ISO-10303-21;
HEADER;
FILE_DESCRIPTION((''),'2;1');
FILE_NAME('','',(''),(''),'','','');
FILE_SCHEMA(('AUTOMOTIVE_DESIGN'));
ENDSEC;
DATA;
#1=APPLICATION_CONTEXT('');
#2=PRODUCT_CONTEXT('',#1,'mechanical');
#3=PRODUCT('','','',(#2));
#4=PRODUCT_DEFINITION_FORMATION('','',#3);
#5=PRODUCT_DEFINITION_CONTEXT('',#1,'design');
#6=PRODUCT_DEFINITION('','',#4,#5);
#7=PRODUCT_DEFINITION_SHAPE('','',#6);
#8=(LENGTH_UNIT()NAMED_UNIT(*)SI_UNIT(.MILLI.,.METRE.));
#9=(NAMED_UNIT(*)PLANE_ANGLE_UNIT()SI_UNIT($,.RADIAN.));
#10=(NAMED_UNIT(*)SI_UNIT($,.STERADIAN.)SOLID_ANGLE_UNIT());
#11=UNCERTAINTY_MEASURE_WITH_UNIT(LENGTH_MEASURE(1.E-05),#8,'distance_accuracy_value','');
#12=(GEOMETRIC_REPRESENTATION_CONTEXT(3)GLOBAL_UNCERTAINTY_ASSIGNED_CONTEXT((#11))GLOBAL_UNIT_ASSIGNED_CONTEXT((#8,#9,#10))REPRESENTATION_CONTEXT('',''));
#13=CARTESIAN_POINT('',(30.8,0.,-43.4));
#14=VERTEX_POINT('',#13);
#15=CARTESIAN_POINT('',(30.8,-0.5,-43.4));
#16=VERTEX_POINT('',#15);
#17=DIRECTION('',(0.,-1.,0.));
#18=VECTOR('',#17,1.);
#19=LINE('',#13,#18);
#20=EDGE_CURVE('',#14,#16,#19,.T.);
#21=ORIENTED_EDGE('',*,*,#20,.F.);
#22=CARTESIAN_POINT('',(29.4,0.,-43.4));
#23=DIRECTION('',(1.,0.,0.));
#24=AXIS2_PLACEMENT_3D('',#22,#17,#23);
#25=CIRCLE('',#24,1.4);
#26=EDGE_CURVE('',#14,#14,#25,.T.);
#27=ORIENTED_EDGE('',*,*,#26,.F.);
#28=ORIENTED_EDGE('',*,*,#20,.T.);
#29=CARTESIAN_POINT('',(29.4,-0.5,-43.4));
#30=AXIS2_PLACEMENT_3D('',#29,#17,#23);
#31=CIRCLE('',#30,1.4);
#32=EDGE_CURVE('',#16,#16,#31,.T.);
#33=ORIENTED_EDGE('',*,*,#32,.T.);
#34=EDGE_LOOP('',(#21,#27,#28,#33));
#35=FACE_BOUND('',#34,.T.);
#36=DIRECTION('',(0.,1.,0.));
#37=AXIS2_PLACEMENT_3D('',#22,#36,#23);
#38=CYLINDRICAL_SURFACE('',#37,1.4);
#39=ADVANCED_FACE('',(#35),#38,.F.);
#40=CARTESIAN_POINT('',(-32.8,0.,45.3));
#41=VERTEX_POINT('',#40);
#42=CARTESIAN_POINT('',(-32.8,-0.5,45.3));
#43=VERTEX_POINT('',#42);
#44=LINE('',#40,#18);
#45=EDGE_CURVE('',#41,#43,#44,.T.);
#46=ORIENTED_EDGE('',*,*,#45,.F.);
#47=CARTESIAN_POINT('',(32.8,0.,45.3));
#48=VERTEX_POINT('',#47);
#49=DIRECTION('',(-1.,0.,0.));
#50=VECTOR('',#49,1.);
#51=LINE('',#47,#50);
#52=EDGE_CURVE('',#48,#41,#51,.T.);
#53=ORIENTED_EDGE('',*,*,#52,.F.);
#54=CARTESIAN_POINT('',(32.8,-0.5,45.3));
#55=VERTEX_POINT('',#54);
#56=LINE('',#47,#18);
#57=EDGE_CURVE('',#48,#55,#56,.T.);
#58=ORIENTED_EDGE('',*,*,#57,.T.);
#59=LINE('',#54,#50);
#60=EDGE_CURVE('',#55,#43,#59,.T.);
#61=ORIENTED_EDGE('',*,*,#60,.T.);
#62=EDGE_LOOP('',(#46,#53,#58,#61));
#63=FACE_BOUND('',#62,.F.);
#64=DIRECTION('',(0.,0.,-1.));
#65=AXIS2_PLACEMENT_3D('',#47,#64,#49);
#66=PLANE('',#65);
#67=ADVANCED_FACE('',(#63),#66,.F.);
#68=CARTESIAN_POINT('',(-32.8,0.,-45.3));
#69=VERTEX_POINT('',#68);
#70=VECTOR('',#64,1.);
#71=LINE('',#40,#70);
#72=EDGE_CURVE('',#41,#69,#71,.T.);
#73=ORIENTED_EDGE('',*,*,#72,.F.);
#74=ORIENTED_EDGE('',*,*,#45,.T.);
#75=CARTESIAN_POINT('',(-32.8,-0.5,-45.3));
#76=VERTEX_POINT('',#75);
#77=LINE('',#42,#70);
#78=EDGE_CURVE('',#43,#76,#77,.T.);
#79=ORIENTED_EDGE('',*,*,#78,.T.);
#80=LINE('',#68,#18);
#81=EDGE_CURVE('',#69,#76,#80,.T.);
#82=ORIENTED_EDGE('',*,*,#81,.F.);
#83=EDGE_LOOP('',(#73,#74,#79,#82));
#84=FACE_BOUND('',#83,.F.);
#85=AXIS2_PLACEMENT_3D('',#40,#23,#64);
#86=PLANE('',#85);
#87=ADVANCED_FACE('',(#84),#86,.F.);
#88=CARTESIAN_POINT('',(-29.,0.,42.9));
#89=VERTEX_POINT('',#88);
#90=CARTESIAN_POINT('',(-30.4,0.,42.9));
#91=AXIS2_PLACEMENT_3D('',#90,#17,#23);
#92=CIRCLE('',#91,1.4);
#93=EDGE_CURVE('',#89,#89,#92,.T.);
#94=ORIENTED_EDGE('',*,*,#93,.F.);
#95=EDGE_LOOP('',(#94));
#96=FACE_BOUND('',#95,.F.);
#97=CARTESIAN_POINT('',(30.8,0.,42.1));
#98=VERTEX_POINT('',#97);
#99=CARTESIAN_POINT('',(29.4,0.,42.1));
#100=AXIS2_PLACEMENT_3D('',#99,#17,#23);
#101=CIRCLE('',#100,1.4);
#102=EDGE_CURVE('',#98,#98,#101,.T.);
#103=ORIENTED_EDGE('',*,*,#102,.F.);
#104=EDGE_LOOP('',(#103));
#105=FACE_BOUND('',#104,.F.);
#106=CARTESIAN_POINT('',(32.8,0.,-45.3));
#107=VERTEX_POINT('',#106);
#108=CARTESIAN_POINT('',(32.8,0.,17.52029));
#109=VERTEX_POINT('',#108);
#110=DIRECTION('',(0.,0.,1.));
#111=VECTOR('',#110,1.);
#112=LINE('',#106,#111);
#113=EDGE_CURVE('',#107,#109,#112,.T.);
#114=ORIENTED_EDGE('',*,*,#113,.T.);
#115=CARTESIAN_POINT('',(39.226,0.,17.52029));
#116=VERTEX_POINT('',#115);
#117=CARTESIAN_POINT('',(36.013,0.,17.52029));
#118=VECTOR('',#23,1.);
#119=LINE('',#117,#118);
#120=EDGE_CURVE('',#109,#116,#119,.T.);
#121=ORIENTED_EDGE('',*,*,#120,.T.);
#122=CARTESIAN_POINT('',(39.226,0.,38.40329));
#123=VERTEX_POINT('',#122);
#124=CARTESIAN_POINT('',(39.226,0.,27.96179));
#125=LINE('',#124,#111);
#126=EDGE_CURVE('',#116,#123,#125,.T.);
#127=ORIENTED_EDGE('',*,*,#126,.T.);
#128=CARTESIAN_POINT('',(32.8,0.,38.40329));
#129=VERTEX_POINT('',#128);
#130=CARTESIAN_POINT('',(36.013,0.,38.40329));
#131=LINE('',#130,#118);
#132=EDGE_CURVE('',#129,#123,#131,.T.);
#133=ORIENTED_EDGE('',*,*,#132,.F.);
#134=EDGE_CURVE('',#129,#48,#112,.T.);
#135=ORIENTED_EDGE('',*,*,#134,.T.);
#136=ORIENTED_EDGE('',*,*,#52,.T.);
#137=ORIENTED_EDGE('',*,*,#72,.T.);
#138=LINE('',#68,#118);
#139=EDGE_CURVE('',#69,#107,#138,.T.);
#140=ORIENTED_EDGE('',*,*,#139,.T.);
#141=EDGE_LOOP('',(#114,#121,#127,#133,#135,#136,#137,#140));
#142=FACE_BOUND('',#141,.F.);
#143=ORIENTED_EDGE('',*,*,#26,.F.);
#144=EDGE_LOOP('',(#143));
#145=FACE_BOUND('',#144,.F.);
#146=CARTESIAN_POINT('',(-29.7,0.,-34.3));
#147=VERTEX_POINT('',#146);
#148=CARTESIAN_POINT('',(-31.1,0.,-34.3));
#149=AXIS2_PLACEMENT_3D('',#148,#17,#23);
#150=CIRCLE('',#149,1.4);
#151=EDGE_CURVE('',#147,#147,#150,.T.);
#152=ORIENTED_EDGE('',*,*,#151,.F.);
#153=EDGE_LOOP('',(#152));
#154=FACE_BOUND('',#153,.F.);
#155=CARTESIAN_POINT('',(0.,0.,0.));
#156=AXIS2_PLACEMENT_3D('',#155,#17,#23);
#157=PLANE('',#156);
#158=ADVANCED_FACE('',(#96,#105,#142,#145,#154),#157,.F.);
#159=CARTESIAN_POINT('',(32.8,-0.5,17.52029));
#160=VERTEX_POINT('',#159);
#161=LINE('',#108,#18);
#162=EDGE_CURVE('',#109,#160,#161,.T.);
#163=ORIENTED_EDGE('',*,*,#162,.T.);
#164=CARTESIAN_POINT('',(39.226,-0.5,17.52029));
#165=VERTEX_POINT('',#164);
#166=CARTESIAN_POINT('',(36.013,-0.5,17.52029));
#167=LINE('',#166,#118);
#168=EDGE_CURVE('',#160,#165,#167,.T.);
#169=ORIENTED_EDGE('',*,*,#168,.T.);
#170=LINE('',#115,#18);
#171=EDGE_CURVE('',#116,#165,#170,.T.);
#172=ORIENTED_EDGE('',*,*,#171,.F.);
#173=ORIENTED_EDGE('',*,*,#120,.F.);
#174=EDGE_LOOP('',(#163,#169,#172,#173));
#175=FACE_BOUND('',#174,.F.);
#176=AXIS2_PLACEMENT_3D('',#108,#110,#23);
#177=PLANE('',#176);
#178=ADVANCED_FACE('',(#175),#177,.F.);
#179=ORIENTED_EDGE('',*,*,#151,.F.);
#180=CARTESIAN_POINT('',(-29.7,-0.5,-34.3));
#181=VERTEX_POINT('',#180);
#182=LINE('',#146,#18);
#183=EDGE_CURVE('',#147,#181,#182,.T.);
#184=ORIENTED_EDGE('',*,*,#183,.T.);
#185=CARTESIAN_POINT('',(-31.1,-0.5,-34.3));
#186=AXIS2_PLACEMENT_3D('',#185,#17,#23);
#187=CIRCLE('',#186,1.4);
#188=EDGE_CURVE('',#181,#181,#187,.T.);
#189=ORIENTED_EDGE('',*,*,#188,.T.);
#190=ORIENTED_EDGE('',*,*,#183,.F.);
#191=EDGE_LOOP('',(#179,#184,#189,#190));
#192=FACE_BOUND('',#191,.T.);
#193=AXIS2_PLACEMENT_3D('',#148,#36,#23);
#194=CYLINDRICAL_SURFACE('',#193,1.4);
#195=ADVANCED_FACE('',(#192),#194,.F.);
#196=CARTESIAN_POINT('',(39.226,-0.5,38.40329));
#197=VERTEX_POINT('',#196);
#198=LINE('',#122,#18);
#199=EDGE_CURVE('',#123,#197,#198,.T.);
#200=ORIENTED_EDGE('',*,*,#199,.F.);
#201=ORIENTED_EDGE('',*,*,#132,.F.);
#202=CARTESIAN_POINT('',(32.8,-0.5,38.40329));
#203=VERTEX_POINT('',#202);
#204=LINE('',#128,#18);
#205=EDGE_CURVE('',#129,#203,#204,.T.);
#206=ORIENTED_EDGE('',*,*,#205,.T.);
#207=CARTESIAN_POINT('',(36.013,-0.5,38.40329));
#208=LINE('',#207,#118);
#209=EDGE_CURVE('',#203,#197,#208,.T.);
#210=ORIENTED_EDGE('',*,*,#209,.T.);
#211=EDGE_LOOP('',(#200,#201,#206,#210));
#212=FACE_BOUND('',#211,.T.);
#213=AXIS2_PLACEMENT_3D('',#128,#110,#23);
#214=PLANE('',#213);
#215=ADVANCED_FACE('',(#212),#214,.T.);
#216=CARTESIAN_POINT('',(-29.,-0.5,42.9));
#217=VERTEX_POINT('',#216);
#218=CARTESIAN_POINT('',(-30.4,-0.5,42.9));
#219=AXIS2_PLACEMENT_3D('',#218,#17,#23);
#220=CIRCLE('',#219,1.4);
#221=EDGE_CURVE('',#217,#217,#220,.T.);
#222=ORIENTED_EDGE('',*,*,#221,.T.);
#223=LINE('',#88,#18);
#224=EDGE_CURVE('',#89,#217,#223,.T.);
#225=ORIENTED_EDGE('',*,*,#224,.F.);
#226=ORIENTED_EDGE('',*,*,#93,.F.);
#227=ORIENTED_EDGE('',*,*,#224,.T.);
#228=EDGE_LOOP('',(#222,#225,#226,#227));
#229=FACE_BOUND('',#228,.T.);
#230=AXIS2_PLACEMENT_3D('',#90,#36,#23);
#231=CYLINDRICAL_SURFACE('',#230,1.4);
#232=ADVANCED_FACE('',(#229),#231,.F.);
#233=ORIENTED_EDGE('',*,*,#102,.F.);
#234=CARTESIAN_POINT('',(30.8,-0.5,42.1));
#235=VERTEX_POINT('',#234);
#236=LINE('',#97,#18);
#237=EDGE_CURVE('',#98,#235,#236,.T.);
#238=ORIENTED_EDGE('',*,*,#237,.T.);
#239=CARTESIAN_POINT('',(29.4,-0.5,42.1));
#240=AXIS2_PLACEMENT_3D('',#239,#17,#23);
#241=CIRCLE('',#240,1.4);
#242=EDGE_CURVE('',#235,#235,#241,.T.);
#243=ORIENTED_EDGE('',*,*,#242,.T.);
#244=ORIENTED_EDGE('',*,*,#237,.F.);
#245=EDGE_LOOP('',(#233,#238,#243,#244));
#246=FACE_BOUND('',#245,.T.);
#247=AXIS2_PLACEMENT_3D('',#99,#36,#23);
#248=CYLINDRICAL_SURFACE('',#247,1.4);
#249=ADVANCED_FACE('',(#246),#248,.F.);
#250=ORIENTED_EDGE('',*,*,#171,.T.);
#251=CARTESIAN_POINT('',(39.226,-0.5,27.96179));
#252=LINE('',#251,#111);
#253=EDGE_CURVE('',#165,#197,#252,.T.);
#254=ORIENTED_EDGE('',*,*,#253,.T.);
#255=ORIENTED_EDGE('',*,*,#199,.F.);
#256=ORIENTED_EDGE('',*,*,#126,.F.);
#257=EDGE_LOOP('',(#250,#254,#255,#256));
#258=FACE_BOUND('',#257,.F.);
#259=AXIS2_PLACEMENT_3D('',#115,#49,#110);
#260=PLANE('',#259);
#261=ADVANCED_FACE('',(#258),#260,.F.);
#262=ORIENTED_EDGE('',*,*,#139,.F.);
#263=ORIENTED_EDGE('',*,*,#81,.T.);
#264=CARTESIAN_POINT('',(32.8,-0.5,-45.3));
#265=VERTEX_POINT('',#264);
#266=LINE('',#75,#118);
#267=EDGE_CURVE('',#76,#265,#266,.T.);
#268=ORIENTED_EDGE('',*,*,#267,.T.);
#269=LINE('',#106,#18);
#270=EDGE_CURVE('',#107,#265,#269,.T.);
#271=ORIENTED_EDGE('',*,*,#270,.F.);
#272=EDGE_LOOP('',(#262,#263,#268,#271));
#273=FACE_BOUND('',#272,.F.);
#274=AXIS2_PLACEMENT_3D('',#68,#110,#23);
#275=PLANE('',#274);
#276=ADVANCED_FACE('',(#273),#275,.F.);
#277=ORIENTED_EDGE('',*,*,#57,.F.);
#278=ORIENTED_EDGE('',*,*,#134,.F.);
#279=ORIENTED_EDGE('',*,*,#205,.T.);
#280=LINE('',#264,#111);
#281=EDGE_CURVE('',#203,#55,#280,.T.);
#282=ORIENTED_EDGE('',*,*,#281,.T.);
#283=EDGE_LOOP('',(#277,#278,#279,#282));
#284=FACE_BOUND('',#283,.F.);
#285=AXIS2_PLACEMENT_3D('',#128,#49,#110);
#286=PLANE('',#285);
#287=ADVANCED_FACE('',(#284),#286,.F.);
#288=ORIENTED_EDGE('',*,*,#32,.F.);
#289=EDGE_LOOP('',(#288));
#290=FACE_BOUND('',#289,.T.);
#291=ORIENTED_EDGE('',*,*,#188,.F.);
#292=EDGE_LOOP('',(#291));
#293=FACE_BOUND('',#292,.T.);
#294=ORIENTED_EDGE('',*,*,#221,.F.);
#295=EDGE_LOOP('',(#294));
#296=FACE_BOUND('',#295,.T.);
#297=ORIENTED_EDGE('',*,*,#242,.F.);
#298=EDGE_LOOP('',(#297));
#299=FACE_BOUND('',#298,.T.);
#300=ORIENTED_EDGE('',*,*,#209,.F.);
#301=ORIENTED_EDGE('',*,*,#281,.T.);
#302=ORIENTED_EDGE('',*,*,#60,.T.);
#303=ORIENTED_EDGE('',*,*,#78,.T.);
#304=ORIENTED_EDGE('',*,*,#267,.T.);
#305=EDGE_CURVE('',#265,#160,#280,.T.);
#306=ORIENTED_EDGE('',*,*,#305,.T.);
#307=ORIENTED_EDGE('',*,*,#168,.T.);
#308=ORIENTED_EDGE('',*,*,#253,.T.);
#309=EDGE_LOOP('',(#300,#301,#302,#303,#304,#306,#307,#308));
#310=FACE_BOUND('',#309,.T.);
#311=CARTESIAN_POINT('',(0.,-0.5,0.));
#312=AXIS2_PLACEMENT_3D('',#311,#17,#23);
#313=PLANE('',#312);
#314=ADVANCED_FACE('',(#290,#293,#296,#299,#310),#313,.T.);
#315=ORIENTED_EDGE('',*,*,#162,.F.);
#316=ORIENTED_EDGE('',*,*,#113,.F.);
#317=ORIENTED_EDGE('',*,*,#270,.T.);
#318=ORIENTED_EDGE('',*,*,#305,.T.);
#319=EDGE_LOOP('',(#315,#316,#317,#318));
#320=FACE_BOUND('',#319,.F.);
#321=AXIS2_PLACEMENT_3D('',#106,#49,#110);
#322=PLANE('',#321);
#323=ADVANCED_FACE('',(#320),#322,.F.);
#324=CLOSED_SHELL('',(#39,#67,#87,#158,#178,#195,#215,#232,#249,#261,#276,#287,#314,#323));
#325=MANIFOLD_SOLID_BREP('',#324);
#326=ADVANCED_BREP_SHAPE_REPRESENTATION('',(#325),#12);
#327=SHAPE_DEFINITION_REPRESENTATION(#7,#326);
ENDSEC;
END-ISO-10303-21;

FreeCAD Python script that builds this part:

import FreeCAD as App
import Part
import Sketcher
Q = App.Units.Quantity


def add_polygon(sketch, points):
    """Adds a closed chain of lines whose ends are joined by coincident constraints."""
    first, n = sketch.GeometryCount, len(points)
    for a, b in zip(points, points[1:] + points[:1]):
        sketch.addGeometry(Part.LineSegment(App.Vector(*a, 0), App.Vector(*b, 0)), False)
    for i in range(n):
        sketch.addConstraint(Sketcher.Constraint("Coincident", first + i, 2, first + (i + 1) % n, 1))

doc = App.newDocument("Part")
params = doc.addObject("Spreadsheet::Sheet", "Params")
for row, (alias, value) in enumerate([
    ("sketch1_diameter", "2.8 mm"),
    ("sketch1_width", "65.6 mm"),
    ("sketch1_height", "90.6 mm"),
    ("pad1_length", "0.5 mm"),
], start=1):
    params.set(f"A{row}", alias)
    params.set(f"B{row}", "=" + value)
    params.setAlias(f"B{row}", alias)

body = doc.addObject("PartDesign::Body", "Body")

sketch1 = body.newObject("Sketcher::SketchObject", "Sketch")
sketch1.AttachmentSupport = (doc.getObject("XZ_Plane"), [""])
sketch1.MapMode = "FlatFace"
add_polygon(sketch1, [(-32.8, -45.3), (32.8, -45.3), (32.8, 17.52029), (39.226, 17.52029), (39.226, 38.40329), (32.8, 38.40329), (32.8, 45.3), (-32.8, 45.3)])
sketch1.addGeometry(Part.Circle(App.Vector(-31.1, -34.3, 0), App.Vector(0, 0, 1), 1.4), False)
sketch1.addGeometry(Part.Circle(App.Vector(29.4, -43.4, 0), App.Vector(0, 0, 1), 1.4), False)
sketch1.addGeometry(Part.Circle(App.Vector(-30.4, 42.9, 0), App.Vector(0, 0, 1), 1.4), False)
sketch1.addGeometry(Part.Circle(App.Vector(29.4, 42.1, 0), App.Vector(0, 0, 1), 1.4), False)
sketch1.addConstraint(Sketcher.Constraint("Horizontal", 0))
sketch1.addConstraint(Sketcher.Constraint("Vertical", 1))
sketch1.addConstraint(Sketcher.Constraint("Horizontal", 2))
sketch1.addConstraint(Sketcher.Constraint("Vertical", 3))
sketch1.addConstraint(Sketcher.Constraint("Horizontal", 4))
sketch1.addConstraint(Sketcher.Constraint("Vertical", 5))
sketch1.addConstraint(Sketcher.Constraint("Horizontal", 6))
sketch1.addConstraint(Sketcher.Constraint("Vertical", 7))
sketch1.addConstraint(Sketcher.Constraint("Equal", 8, 9))
sketch1.addConstraint(Sketcher.Constraint("Equal", 9, 10))
sketch1.addConstraint(Sketcher.Constraint("Equal", 10, 11))
sketch1.addConstraint(Sketcher.Constraint("Symmetric", 0, 2, 6, 2, -1, 1))
sketch1.addConstraint(Sketcher.Constraint("Vertical", 9, 3, 11, 3))
sketch1.addConstraint(Sketcher.Constraint("Vertical", 1, 2, 4, 2))
sketch1.addConstraint(Sketcher.Constraint("Diameter", 8, Q("2.8 mm")))
sketch1.addConstraint(Sketcher.Constraint("DistanceX", 0, 1, 0, 2, Q("65.6 mm")))
sketch1.addConstraint(Sketcher.Constraint("DistanceY", 7, 2, 7, 1, Q("90.6 mm")))
sketch1.addConstraint(Sketcher.Constraint("DistanceY", 0, 2, 8, 3, Q("11 mm")))
sketch1.addConstraint(Sketcher.Constraint("DistanceX", 8, 3, -1, 1, Q("31.1 mm")))
sketch1.addConstraint(Sketcher.Constraint("DistanceX", -1, 1, 9, 3, Q("29.4 mm")))
sketch1.addConstraint(Sketcher.Constraint("DistanceY", 9, 3, -1, 1, Q("43.4 mm")))
sketch1.addConstraint(Sketcher.Constraint("DistanceX", 10, 3, -1, 1, Q("30.4 mm")))
sketch1.addConstraint(Sketcher.Constraint("DistanceY", -1, 1, 10, 3, Q("42.9 mm")))
sketch1.addConstraint(Sketcher.Constraint("DistanceY", -1, 1, 11, 3, Q("42.1 mm")))
sketch1.addConstraint(Sketcher.Constraint("DistanceX", 2, 1, 2, 2, Q("6.426 mm")))
sketch1.addConstraint(Sketcher.Constraint("DistanceY", 3, 1, 3, 2, Q("20.883 mm")))
sketch1.addConstraint(Sketcher.Constraint("DistanceY", 1, 1, 1, 2, Q("62.82029 mm")))
sketch1.setExpression("Constraints[22]", "Params.sketch1_diameter")
sketch1.setExpression("Constraints[23]", "Params.sketch1_width")
sketch1.setExpression("Constraints[24]", "Params.sketch1_height")
pad1 = body.newObject("PartDesign::Pad", "Pad")
pad1.Profile = sketch1
pad1.setExpression("Length", "Params.pad1_length")

doc.recompute()
